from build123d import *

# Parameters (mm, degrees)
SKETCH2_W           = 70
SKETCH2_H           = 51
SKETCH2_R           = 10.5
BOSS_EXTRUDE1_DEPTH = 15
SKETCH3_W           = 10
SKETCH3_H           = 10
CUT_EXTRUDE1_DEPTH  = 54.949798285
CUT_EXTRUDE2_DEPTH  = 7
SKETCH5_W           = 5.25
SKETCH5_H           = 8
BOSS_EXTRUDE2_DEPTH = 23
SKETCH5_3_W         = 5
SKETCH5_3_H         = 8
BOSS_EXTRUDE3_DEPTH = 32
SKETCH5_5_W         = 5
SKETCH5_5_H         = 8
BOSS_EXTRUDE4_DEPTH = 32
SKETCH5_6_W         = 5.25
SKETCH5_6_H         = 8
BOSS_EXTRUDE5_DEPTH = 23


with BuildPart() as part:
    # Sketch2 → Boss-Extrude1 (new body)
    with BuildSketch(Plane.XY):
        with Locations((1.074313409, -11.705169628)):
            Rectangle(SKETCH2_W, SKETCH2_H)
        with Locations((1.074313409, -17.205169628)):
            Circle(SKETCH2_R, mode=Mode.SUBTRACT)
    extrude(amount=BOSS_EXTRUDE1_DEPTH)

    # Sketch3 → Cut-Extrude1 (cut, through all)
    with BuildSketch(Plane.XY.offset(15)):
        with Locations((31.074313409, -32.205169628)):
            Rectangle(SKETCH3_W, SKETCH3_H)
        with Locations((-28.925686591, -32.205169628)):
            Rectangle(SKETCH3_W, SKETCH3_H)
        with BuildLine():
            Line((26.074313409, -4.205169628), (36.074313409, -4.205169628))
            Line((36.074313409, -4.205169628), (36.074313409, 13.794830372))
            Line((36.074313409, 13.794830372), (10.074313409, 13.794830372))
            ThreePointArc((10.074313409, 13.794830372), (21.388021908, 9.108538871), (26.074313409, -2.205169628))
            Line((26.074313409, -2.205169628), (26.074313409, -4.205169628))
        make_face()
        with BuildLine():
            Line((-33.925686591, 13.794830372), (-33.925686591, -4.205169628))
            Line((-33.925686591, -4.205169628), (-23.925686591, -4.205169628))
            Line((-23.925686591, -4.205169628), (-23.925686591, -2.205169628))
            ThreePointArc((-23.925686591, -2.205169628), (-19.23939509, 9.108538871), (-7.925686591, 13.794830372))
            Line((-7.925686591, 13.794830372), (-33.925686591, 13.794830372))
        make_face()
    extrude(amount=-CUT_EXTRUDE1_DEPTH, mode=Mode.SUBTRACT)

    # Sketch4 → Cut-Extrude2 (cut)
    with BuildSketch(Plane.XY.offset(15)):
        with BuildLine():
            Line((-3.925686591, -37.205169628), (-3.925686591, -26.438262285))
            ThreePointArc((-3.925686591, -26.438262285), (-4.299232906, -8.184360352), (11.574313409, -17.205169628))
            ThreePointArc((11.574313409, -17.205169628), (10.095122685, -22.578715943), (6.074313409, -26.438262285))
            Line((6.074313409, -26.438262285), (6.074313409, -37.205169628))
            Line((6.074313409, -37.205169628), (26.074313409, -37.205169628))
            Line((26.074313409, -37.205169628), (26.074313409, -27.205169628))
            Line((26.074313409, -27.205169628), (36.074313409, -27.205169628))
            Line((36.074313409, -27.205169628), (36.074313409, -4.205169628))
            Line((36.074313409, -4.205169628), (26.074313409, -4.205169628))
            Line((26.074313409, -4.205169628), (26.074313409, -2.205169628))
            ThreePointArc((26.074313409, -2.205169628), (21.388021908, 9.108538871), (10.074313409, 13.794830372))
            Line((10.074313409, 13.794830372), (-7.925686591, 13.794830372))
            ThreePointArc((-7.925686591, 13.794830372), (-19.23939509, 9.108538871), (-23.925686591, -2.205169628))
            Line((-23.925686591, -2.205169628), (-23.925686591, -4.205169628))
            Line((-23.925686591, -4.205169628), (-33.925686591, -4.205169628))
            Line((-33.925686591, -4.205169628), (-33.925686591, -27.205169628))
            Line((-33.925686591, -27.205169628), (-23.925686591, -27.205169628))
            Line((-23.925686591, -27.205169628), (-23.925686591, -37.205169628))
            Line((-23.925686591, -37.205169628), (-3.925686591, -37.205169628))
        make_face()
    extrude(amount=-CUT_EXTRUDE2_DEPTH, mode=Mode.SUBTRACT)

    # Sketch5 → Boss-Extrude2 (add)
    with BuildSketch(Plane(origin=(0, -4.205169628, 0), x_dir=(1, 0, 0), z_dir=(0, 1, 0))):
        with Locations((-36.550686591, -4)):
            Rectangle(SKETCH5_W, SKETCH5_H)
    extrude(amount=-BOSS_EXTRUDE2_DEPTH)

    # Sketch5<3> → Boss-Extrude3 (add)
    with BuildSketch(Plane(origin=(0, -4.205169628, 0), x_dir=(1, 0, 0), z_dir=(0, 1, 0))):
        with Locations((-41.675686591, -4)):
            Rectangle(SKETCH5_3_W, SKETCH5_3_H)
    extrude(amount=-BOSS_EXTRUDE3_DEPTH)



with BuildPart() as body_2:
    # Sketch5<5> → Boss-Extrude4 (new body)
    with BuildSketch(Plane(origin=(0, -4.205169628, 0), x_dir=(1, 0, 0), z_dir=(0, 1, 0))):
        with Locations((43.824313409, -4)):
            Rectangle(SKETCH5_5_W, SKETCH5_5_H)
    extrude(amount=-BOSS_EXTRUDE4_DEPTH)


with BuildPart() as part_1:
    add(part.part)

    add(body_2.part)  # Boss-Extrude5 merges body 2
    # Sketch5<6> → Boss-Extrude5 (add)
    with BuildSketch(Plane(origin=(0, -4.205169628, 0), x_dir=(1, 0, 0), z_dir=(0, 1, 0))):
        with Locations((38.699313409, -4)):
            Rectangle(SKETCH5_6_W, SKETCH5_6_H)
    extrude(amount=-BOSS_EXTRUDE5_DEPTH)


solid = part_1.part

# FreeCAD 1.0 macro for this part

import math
import FreeCAD as App
import Part
import Sketcher

V = App.Vector
Q = App.Units.Quantity

doc = App.newDocument("Part")
body = doc.addObject("PartDesign::Body", "Body")

# Sketch on XY plane
sketch1 = doc.addObject("Sketcher::SketchObject", "Sketch")
body.addObject(sketch1)
sketch1.AttachmentSupport = (doc.XY_Plane, [""])
sketch1.MapMode = "FlatFace"
sketch1.addGeometry(Part.LineSegment(V(-34, 14, 0), V(-34, -37, 0)), False)
sketch1.addGeometry(Part.LineSegment(V(-34, -37, 0), V(36, -37, 0)), False)
sketch1.addGeometry(Part.LineSegment(V(36, -37, 0), V(36, 14, 0)), False)
sketch1.addGeometry(Part.LineSegment(V(36, 14, 0), V(-34, 14, 0)), False)
sketch1.addGeometry(Part.Circle(V(1, -17, 0), V(0, 0, 1), 10), False)
sketch1.addConstraint(Sketcher.Constraint("Coincident", 0, 2, 1, 1))
sketch1.addConstraint(Sketcher.Constraint("Coincident", 1, 2, 2, 1))
sketch1.addConstraint(Sketcher.Constraint("Coincident", 2, 2, 3, 1))
sketch1.addConstraint(Sketcher.Constraint("Coincident", 3, 2, 0, 1))
sketch1.addConstraint(Sketcher.Constraint("Vertical", 0))
sketch1.addConstraint(Sketcher.Constraint("Horizontal", 1))
sketch1.addConstraint(Sketcher.Constraint("Vertical", 2))
sketch1.addConstraint(Sketcher.Constraint("Horizontal", 3))
sketch1.addConstraint(Sketcher.Constraint("Diameter", 4, Q("21 mm")))
sketch1.addConstraint(Sketcher.Constraint("DistanceX", 1, 1, 1, 2, Q("70 mm")))
sketch1.addConstraint(Sketcher.Constraint("DistanceY", 0, 2, 0, 1, Q("51 mm")))
sketch1.addConstraint(Sketcher.Constraint("DistanceX", 0, 2, 4, 3, Q("35 mm")))
sketch1.addConstraint(Sketcher.Constraint("DistanceY", 0, 2, 4, 3, Q("20 mm")))
sketch1.addConstraint(Sketcher.Constraint("DistanceY", 4, 3, -1, 1, Q("17.20517 mm")))
sketch1.addConstraint(Sketcher.Constraint("DistanceX", -1, 1, 4, 3, Q("1.074313 mm")))
pad1 = doc.addObject("PartDesign::Pad", "Pad")
body.addObject(pad1)
pad1.Profile = sketch1
pad1.Length = 15

# Sketch on XY plane
sketch2 = doc.addObject("Sketcher::SketchObject", "Sketch001")
body.addObject(sketch2)
sketch2.AttachmentSupport = (doc.XY_Plane, [""])
sketch2.MapMode = "FlatFace"
sketch2.AttachmentOffset = App.Placement(V(0, 0, 15), App.Rotation())
sketch2.addGeometry(Part.LineSegment(V(26.1, -27.2, 0), V(26.1, -37.2, 0)), False)
sketch2.addGeometry(Part.LineSegment(V(26.1, -37.2, 0), V(36.1, -37.2, 0)), False)
sketch2.addGeometry(Part.LineSegment(V(36.1, -37.2, 0), V(36.1, -27.2, 0)), False)
sketch2.addGeometry(Part.LineSegment(V(36.1, -27.2, 0), V(26.1, -27.2, 0)), False)
sketch2.addGeometry(Part.LineSegment(V(-33.9, -27.2, 0), V(-33.9, -37.2, 0)), False)
sketch2.addGeometry(Part.LineSegment(V(-33.9, -37.2, 0), V(-23.9, -37.2, 0)), False)
sketch2.addGeometry(Part.LineSegment(V(-23.9, -37.2, 0), V(-23.9, -27.2, 0)), False)
sketch2.addGeometry(Part.LineSegment(V(-23.9, -27.2, 0), V(-33.9, -27.2, 0)), False)
sketch2.addGeometry(Part.LineSegment(V(26.1, -4.2, 0), V(36.1, -4.2, 0)), False)
sketch2.addGeometry(Part.LineSegment(V(36.1, -4.2, 0), V(36.1, 13.8, 0)), False)
sketch2.addGeometry(Part.LineSegment(V(36.1, 13.8, 0), V(10.1, 13.8, 0)), False)
sketch2.addGeometry(Part.ArcOfCircle(Part.Circle(V(10.1, -2.2, 0), V(0, 0, 1), 16), math.radians(0), math.radians(90)), False)
sketch2.addGeometry(Part.LineSegment(V(26.1, -2.2, 0), V(26.1, -4.2, 0)), False)
sketch2.addGeometry(Part.LineSegment(V(-33.9, 13.8, 0), V(-33.9, -4.2, 0)), False)
sketch2.addGeometry(Part.LineSegment(V(-33.9, -4.2, 0), V(-23.9, -4.2, 0)), False)
sketch2.addGeometry(Part.LineSegment(V(-23.9, -4.2, 0), V(-23.9, -2.2, 0)), False)
sketch2.addGeometry(Part.ArcOfCircle(Part.Circle(V(-7.9, -2.2, 0), V(0, 0, 1), 16), math.radians(90), math.radians(180)), False)
sketch2.addGeometry(Part.LineSegment(V(-7.9, 13.8, 0), V(-33.9, 13.8, 0)), False)
sketch2.addConstraint(Sketcher.Constraint("Coincident", 0, 2, 1, 1))
sketch2.addConstraint(Sketcher.Constraint("Coincident", 1, 2, 2, 1))
sketch2.addConstraint(Sketcher.Constraint("Coincident", 2, 2, 3, 1))
sketch2.addConstraint(Sketcher.Constraint("Coincident", 3, 2, 0, 1))
sketch2.addConstraint(Sketcher.Constraint("Coincident", 4, 2, 5, 1))
sketch2.addConstraint(Sketcher.Constraint("Coincident", 5, 2, 6, 1))
sketch2.addConstraint(Sketcher.Constraint("Coincident", 6, 2, 7, 1))
sketch2.addConstraint(Sketcher.Constraint("Coincident", 7, 2, 4, 1))
sketch2.addConstraint(Sketcher.Constraint("Coincident", 8, 2, 9, 1))
sketch2.addConstraint(Sketcher.Constraint("Coincident", 9, 2, 10, 1))
sketch2.addConstraint(Sketcher.Constraint("Tangent", 10, 2, 11, 2))
sketch2.addConstraint(Sketcher.Constraint("Tangent", 11, 1, 12, 1))
sketch2.addConstraint(Sketcher.Constraint("Coincident", 12, 2, 8, 1))
sketch2.addConstraint(Sketcher.Constraint("Coincident", 13, 2, 14, 1))
sketch2.addConstraint(Sketcher.Constraint("Coincident", 14, 2, 15, 1))
sketch2.addConstraint(Sketcher.Constraint("Tangent", 15, 2, 16, 2))
sketch2.addConstraint(Sketcher.Constraint("Tangent", 16, 1, 17, 1))
sketch2.addConstraint(Sketcher.Constraint("Coincident", 17, 2, 13, 1))
sketch2.addConstraint(Sketcher.Constraint("Vertical", 0))
sketch2.addConstraint(Sketcher.Constraint("Horizontal", 1))
sketch2.addConstraint(Sketcher.Constraint("Vertical", 2))
sketch2.addConstraint(Sketcher.Constraint("Horizontal", 3))
sketch2.addConstraint(Sketcher.Constraint("Vertical", 4))
sketch2.addConstraint(Sketcher.Constraint("Horizontal", 5))
sketch2.addConstraint(Sketcher.Constraint("Vertical", 6))
sketch2.addConstraint(Sketcher.Constraint("Horizontal", 7))
sketch2.addConstraint(Sketcher.Constraint("Horizontal", 8))
sketch2.addConstraint(Sketcher.Constraint("Vertical", 9))
sketch2.addConstraint(Sketcher.Constraint("Horizontal", 10))
sketch2.addConstraint(Sketcher.Constraint("Vertical", 12))
sketch2.addConstraint(Sketcher.Constraint("Vertical", 13))
sketch2.addConstraint(Sketcher.Constraint("Horizontal", 14))
sketch2.addConstraint(Sketcher.Constraint("Vertical", 15))
sketch2.addConstraint(Sketcher.Constraint("Horizontal", 17))
sketch2.addConstraint(Sketcher.Constraint("Equal", 11, 16))
sketch2.addConstraint(Sketcher.Constraint("Horizontal", 11, 3, 16, 3))
sketch2.addConstraint(Sketcher.Constraint("Horizontal", 1, 2, 4, 2))
sketch2.addConstraint(Sketcher.Constraint("Horizontal", 3, 2, 6, 2))
sketch2.addConstraint(Sketcher.Constraint("Horizontal", 12, 2, 13, 2))
sketch2.addConstraint(Sketcher.Constraint("Vertical", 2, 2, 8, 2))
sketch2.addConstraint(Sketcher.Constraint("Vertical", 3, 2, 11, 1))
sketch2.addConstraint(Sketcher.Constraint("Vertical", 7, 2, 13, 2))
sketch2.addConstraint(Sketcher.Constraint("Vertical", 6, 2, 14, 2))
sketch2.addConstraint(Sketcher.Constraint("Equal", 3, 5))
sketch2.addConstraint(Sketcher.Constraint("Equal", 14, 0))
sketch2.addConstraint(Sketcher.Constraint("Radius", 11, Q("16 mm")))
sketch2.addConstraint(Sketcher.Constraint("DistanceX", 1, 1, 1, 2, Q("10 mm")))
sketch2.addConstraint(Sketcher.Constraint("DistanceY", 9, 1, 9, 2, Q("18 mm")))
sketch2.addConstraint(Sketcher.Constraint("DistanceX", 16, 3, 11, 3, Q("18 mm")))
sketch2.addConstraint(Sketcher.Constraint("DistanceY", 0, 2, 11, 3, Q("35 mm")))
sketch2.addConstraint(Sketcher.Constraint("DistanceY", 11, 3, -1, 1, Q("2.20517 mm")))
sketch2.addConstraint(Sketcher.Constraint("DistanceX", -1, 1, 11, 3, Q("10.074313 mm")))
pocket1 = doc.addObject("PartDesign::Pocket", "Pocket")
body.addObject(pocket1)
pocket1.Profile = sketch2
pocket1.Type = "ThroughAll"

# Sketch on XY plane
sketch3 = doc.addObject("Sketcher::SketchObject", "Sketch002")
body.addObject(sketch3)
sketch3.AttachmentSupport = (doc.XY_Plane, [""])
sketch3.MapMode = "FlatFace"
sketch3.AttachmentOffset = App.Placement(V(0, 0, 15), App.Rotation())
sketch3.addGeometry(Part.LineSegment(V(-3.9, -37.2, 0), V(-3.9, -26.4, 0)), False)
sketch3.addGeometry(Part.ArcOfCircle(Part.Circle(V(1.1, -17.2, 0), V(0, 0, 1), 10.5), math.radians(0), math.radians(242)), False)
sketch3.addGeometry(Part.ArcOfCircle(Part.Circle(V(1.1, -17.2, 0), V(0, 0, 1), 10.5), math.radians(-62), math.radians(0)), False)
sketch3.addGeometry(Part.LineSegment(V(6.1, -26.4, 0), V(6.1, -37.2, 0)), False)
sketch3.addGeometry(Part.LineSegment(V(6.1, -37.2, 0), V(26.1, -37.2, 0)), False)
sketch3.addGeometry(Part.LineSegment(V(26.1, -37.2, 0), V(26.1, -27.2, 0)), False)
sketch3.addGeometry(Part.LineSegment(V(26.1, -27.2, 0), V(36.1, -27.2, 0)), False)
sketch3.addGeometry(Part.LineSegment(V(36.1, -27.2, 0), V(36.1, -4.2, 0)), False)
sketch3.addGeometry(Part.LineSegment(V(36.1, -4.2, 0), V(26.1, -4.2, 0)), False)
sketch3.addGeometry(Part.LineSegment(V(26.1, -4.2, 0), V(26.1, -2.2, 0)), False)
sketch3.addGeometry(Part.ArcOfCircle(Part.Circle(V(10.1, -2.2, 0), V(0, 0, 1), 16), math.radians(0), math.radians(90)), False)
sketch3.addGeometry(Part.LineSegment(V(10.1, 13.8, 0), V(-7.9, 13.8, 0)), False)
sketch3.addGeometry(Part.ArcOfCircle(Part.Circle(V(-7.9, -2.2, 0), V(0, 0, 1), 16), math.radians(90), math.radians(180)), False)
sketch3.addGeometry(Part.LineSegment(V(-23.9, -2.2, 0), V(-23.9, -4.2, 0)), False)
sketch3.addGeometry(Part.LineSegment(V(-23.9, -4.2, 0), V(-33.9, -4.2, 0)), False)
sketch3.addGeometry(Part.LineSegment(V(-33.9, -4.2, 0), V(-33.9, -27.2, 0)), False)
sketch3.addGeometry(Part.LineSegment(V(-33.9, -27.2, 0), V(-23.9, -27.2, 0)), False)
sketch3.addGeometry(Part.LineSegment(V(-23.9, -27.2, 0), V(-23.9, -37.2, 0)), False)
sketch3.addGeometry(Part.LineSegment(V(-23.9, -37.2, 0), V(-3.9, -37.2, 0)), False)
sketch3.addConstraint(Sketcher.Constraint("Coincident", 0, 2, 1, 2))
sketch3.addConstraint(Sketcher.Constraint("Tangent", 1, 1, 2, 2))
sketch3.addConstraint(Sketcher.Constraint("Coincident", 2, 1, 3, 1))
sketch3.addConstraint(Sketcher.Constraint("Coincident", 3, 2, 4, 1))
sketch3.addConstraint(Sketcher.Constraint("Coincident", 4, 2, 5, 1))
sketch3.addConstraint(Sketcher.Constraint("Coincident", 5, 2, 6, 1))
sketch3.addConstraint(Sketcher.Constraint("Coincident", 6, 2, 7, 1))
sketch3.addConstraint(Sketcher.Constraint("Coincident", 7, 2, 8, 1))
sketch3.addConstraint(Sketcher.Constraint("Coincident", 8, 2, 9, 1))
sketch3.addConstraint(Sketcher.Constraint("Tangent", 9, 2, 10, 1))
sketch3.addConstraint(Sketcher.Constraint("Tangent", 10, 2, 11, 1))
sketch3.addConstraint(Sketcher.Constraint("Tangent", 11, 2, 12, 1))
sketch3.addConstraint(Sketcher.Constraint("Tangent", 12, 2, 13, 1))
sketch3.addConstraint(Sketcher.Constraint("Coincident", 13, 2, 14, 1))
sketch3.addConstraint(Sketcher.Constraint("Coincident", 14, 2, 15, 1))
sketch3.addConstraint(Sketcher.Constraint("Coincident", 15, 2, 16, 1))
sketch3.addConstraint(Sketcher.Constraint("Coincident", 16, 2, 17, 1))
sketch3.addConstraint(Sketcher.Constraint("Coincident", 17, 2, 18, 1))
sketch3.addConstraint(Sketcher.Constraint("Coincident", 18, 2, 0, 1))
sketch3.addConstraint(Sketcher.Constraint("Vertical", 0))
sketch3.addConstraint(Sketcher.Constraint("Vertical", 3))
sketch3.addConstraint(Sketcher.Constraint("Horizontal", 4))
sketch3.addConstraint(Sketcher.Constraint("Vertical", 5))
sketch3.addConstraint(Sketcher.Constraint("Horizontal", 6))
sketch3.addConstraint(Sketcher.Constraint("Vertical", 7))
sketch3.addConstraint(Sketcher.Constraint("Horizontal", 8))
sketch3.addConstraint(Sketcher.Constraint("Vertical", 9))
sketch3.addConstraint(Sketcher.Constraint("Horizontal", 11))
sketch3.addConstraint(Sketcher.Constraint("Vertical", 13))
sketch3.addConstraint(Sketcher.Constraint("Horizontal", 14))
sketch3.addConstraint(Sketcher.Constraint("Vertical", 15))
sketch3.addConstraint(Sketcher.Constraint("Horizontal", 16))
sketch3.addConstraint(Sketcher.Constraint("Vertical", 17))
sketch3.addConstraint(Sketcher.Constraint("Horizontal", 18))
sketch3.addConstraint(Sketcher.Constraint("Equal", 1, 2))
sketch3.addConstraint(Sketcher.Constraint("Equal", 10, 12))
sketch3.addConstraint(Sketcher.Constraint("Horizontal", 2, 3, 1, 1))
sketch3.addConstraint(Sketcher.Constraint("Horizontal", 0, 2, 2, 1))
sketch3.addConstraint(Sketcher.Constraint("Horizontal", 8, 2, 13, 2))
sketch3.addConstraint(Sketcher.Constraint("Horizontal", 6, 2, 15, 2))
sketch3.addConstraint(Sketcher.Constraint("Horizontal", 4, 2, 17, 2))
sketch3.addConstraint(Sketcher.Constraint("Vertical", 5, 2, 8, 2))
sketch3.addConstraint(Sketcher.Constraint("Vertical", 13, 2, 16, 2))
sketch3.addConstraint(Sketcher.Constraint("Equal", 8, 14))
sketch3.addConstraint(Sketcher.Constraint("Equal", 4, 18))
sketch3.addConstraint(Sketcher.Constraint("Equal", 16, 5))
sketch3.addConstraint(Sketcher.Constraint("Radius", 10, Q("16 mm")))
sketch3.addConstraint(Sketcher.Constraint("Radius", 1, Q("10.5 mm")))
sketch3.addConstraint(Sketcher.Constraint("DistanceX", 4, 1, 4, 2, Q("20 mm")))
sketch3.addConstraint(Sketcher.Constraint("DistanceX", 6, 1, 6, 2, Q("10 mm")))
sketch3.addConstraint(Sketcher.Constraint("DistanceX", 11, 2, 11, 1, Q("18 mm")))
sketch3.addConstraint(Sketcher.Constraint("DistanceY", 7, 1, 7, 2, Q("23 mm")))
sketch3.addConstraint(Sketcher.Constraint("DistanceY", 9, 1, 9, 2, Q("2 mm")))
sketch3.addConstraint(Sketcher.Constraint("DistanceY", 2, 3, 10, 3, Q("15 mm")))
sketch3.addConstraint(Sketcher.Constraint("DistanceY", 1, 3, -1, 1, Q("17.20517 mm")))
sketch3.addConstraint(Sketcher.Constraint("DistanceX", -1, 1, 1, 3, Q("1.074313 mm")))
pocket2 = doc.addObject("PartDesign::Pocket", "Pocket001")
body.addObject(pocket2)
pocket2.Profile = sketch3
pocket2.Length = 7

# Sketch on XZ plane
sketch4 = doc.addObject("Sketcher::SketchObject", "Sketch003")
body.addObject(sketch4)
sketch4.AttachmentSupport = (doc.XZ_Plane, [""])
sketch4.MapMode = "FlatFace"
sketch4.AttachmentOffset = App.Placement(V(0, 0, 4.20517), App.Rotation())
sketch4.addGeometry(Part.LineSegment(V(-39, 0, 0), V(-39, 8, 0)), False)
sketch4.addGeometry(Part.LineSegment(V(-39, 8, 0), V(-34, 8, 0)), False)
sketch4.addGeometry(Part.LineSegment(V(-34, 8, 0), V(-34, 0, 0)), False)
sketch4.addGeometry(Part.LineSegment(V(-34, 0, 0), V(-39, 0, 0)), False)
sketch4.addConstraint(Sketcher.Constraint("Coincident", 0, 2, 1, 1))
sketch4.addConstraint(Sketcher.Constraint("Coincident", 1, 2, 2, 1))
sketch4.addConstraint(Sketcher.Constraint("Coincident", 2, 2, 3, 1))
sketch4.addConstraint(Sketcher.Constraint("Coincident", 3, 2, 0, 1))
sketch4.addConstraint(Sketcher.Constraint("Vertical", 0))
sketch4.addConstraint(Sketcher.Constraint("Horizontal", 1))
sketch4.addConstraint(Sketcher.Constraint("Vertical", 2))
sketch4.addConstraint(Sketcher.Constraint("Horizontal", 3))
sketch4.addConstraint(Sketcher.Constraint("PointOnObject", 2, 2, -1))
sketch4.addConstraint(Sketcher.Constraint("DistanceY", 0, 1, 0, 2, Q("8 mm")))
sketch4.addConstraint(Sketcher.Constraint("DistanceX", 1, 1, 1, 2, Q("5.25 mm")))
sketch4.addConstraint(Sketcher.Constraint("DistanceX", 0, 2, -1, 1, Q("39.175687 mm")))
pad2 = doc.addObject("PartDesign::Pad", "Pad001")
body.addObject(pad2)
pad2.Profile = sketch4
pad2.Length = 23

# Sketch on XZ plane
sketch5 = doc.addObject("Sketcher::SketchObject", "Sketch004")
body.addObject(sketch5)
sketch5.AttachmentSupport = (doc.XZ_Plane, [""])
sketch5.MapMode = "FlatFace"
sketch5.AttachmentOffset = App.Placement(V(0, 0, 4.20517), App.Rotation())
sketch5.addGeometry(Part.LineSegment(V(-44, 0, 0), V(-44, 8, 0)), False)
sketch5.addGeometry(Part.LineSegment(V(-44, 8, 0), V(-39, 8, 0)), False)
sketch5.addGeometry(Part.LineSegment(V(-39, 8, 0), V(-39, 0, 0)), False)
sketch5.addGeometry(Part.LineSegment(V(-39, 0, 0), V(-44, 0, 0)), False)
sketch5.addConstraint(Sketcher.Constraint("Coincident", 0, 2, 1, 1))
sketch5.addConstraint(Sketcher.Constraint("Coincident", 1, 2, 2, 1))
sketch5.addConstraint(Sketcher.Constraint("Coincident", 2, 2, 3, 1))
sketch5.addConstraint(Sketcher.Constraint("Coincident", 3, 2, 0, 1))
sketch5.addConstraint(Sketcher.Constraint("Vertical", 0))
sketch5.addConstraint(Sketcher.Constraint("Horizontal", 1))
sketch5.addConstraint(Sketcher.Constraint("Vertical", 2))
sketch5.addConstraint(Sketcher.Constraint("Horizontal", 3))
sketch5.addConstraint(Sketcher.Constraint("PointOnObject", 2, 2, -1))
sketch5.addConstraint(Sketcher.Constraint("DistanceX", 1, 1, 1, 2, Q("5 mm")))
sketch5.addConstraint(Sketcher.Constraint("DistanceY", 0, 1, 0, 2, Q("8 mm")))
sketch5.addConstraint(Sketcher.Constraint("DistanceX", 0, 2, -1, 1, Q("44.175687 mm")))
pad3 = doc.addObject("PartDesign::Pad", "Pad002")
body.addObject(pad3)
pad3.Profile = sketch5
pad3.Length = 32
body2 = doc.addObject("PartDesign::Body", "Body001")

# Sketch on XZ plane
sketch6 = doc.addObject("Sketcher::SketchObject", "Sketch005")
body2.addObject(sketch6)
sketch6.AttachmentSupport = (doc.getObject("XZ_Plane001"), [""])
sketch6.MapMode = "FlatFace"
sketch6.AttachmentOffset = App.Placement(V(0, 0, 4.20517), App.Rotation())
sketch6.addGeometry(Part.LineSegment(V(41, 0, 0), V(41, 8, 0)), False)
sketch6.addGeometry(Part.LineSegment(V(41, 8, 0), V(46, 8, 0)), False)
sketch6.addGeometry(Part.LineSegment(V(46, 8, 0), V(46, 0, 0)), False)
sketch6.addGeometry(Part.LineSegment(V(46, 0, 0), V(41, 0, 0)), False)
sketch6.addConstraint(Sketcher.Constraint("Coincident", 0, 2, 1, 1))
sketch6.addConstraint(Sketcher.Constraint("Coincident", 1, 2, 2, 1))
sketch6.addConstraint(Sketcher.Constraint("Coincident", 2, 2, 3, 1))
sketch6.addConstraint(Sketcher.Constraint("Coincident", 3, 2, 0, 1))
sketch6.addConstraint(Sketcher.Constraint("Vertical", 0))
sketch6.addConstraint(Sketcher.Constraint("Horizontal", 1))
sketch6.addConstraint(Sketcher.Constraint("Vertical", 2))
sketch6.addConstraint(Sketcher.Constraint("Horizontal", 3))
sketch6.addConstraint(Sketcher.Constraint("PointOnObject", 2, 2, -1))
sketch6.addConstraint(Sketcher.Constraint("DistanceX", 1, 1, 1, 2, Q("5 mm")))
sketch6.addConstraint(Sketcher.Constraint("DistanceY", 0, 1, 0, 2, Q("8 mm")))
sketch6.addConstraint(Sketcher.Constraint("DistanceX", -1, 1, 0, 2, Q("41.324313 mm")))
pad4 = doc.addObject("PartDesign::Pad", "Pad003")
body2.addObject(pad4)
pad4.Profile = sketch6
pad4.Length = 32
body.AllowCompound = True
doc.recompute()

boolean = doc.addObject("PartDesign::Boolean", "Boolean")
body.addObject(boolean)
boolean.Type = "Fuse"
boolean.addObjects([body2])

# Sketch on XZ plane
sketch7 = doc.addObject("Sketcher::SketchObject", "Sketch006")
body.addObject(sketch7)
sketch7.AttachmentSupport = (doc.XZ_Plane, [""])
sketch7.MapMode = "FlatFace"
sketch7.AttachmentOffset = App.Placement(V(0, 0, 4.20517), App.Rotation())
sketch7.addGeometry(Part.LineSegment(V(36, 0, 0), V(36, 8, 0)), False)
sketch7.addGeometry(Part.LineSegment(V(36, 8, 0), V(41, 8, 0)), False)
sketch7.addGeometry(Part.LineSegment(V(41, 8, 0), V(41, 0, 0)), False)
sketch7.addGeometry(Part.LineSegment(V(41, 0, 0), V(36, 0, 0)), False)
sketch7.addConstraint(Sketcher.Constraint("Coincident", 0, 2, 1, 1))
sketch7.addConstraint(Sketcher.Constraint("Coincident", 1, 2, 2, 1))
sketch7.addConstraint(Sketcher.Constraint("Coincident", 2, 2, 3, 1))
sketch7.addConstraint(Sketcher.Constraint("Coincident", 3, 2, 0, 1))
sketch7.addConstraint(Sketcher.Constraint("Vertical", 0))
sketch7.addConstraint(Sketcher.Constraint("Horizontal", 1))
sketch7.addConstraint(Sketcher.Constraint("Vertical", 2))
sketch7.addConstraint(Sketcher.Constraint("Horizontal", 3))
sketch7.addConstraint(Sketcher.Constraint("PointOnObject", 2, 2, -1))
sketch7.addConstraint(Sketcher.Constraint("DistanceY", 0, 1, 0, 2, Q("8 mm")))
sketch7.addConstraint(Sketcher.Constraint("DistanceX", 1, 1, 1, 2, Q("5.25 mm")))
sketch7.addConstraint(Sketcher.Constraint("DistanceX", -1, 1, 0, 2, Q("36.074313 mm")))
pad5 = doc.addObject("PartDesign::Pad", "Pad004")
body.addObject(pad5)
pad5.Profile = sketch7
pad5.Length = 23

doc.recompute()
